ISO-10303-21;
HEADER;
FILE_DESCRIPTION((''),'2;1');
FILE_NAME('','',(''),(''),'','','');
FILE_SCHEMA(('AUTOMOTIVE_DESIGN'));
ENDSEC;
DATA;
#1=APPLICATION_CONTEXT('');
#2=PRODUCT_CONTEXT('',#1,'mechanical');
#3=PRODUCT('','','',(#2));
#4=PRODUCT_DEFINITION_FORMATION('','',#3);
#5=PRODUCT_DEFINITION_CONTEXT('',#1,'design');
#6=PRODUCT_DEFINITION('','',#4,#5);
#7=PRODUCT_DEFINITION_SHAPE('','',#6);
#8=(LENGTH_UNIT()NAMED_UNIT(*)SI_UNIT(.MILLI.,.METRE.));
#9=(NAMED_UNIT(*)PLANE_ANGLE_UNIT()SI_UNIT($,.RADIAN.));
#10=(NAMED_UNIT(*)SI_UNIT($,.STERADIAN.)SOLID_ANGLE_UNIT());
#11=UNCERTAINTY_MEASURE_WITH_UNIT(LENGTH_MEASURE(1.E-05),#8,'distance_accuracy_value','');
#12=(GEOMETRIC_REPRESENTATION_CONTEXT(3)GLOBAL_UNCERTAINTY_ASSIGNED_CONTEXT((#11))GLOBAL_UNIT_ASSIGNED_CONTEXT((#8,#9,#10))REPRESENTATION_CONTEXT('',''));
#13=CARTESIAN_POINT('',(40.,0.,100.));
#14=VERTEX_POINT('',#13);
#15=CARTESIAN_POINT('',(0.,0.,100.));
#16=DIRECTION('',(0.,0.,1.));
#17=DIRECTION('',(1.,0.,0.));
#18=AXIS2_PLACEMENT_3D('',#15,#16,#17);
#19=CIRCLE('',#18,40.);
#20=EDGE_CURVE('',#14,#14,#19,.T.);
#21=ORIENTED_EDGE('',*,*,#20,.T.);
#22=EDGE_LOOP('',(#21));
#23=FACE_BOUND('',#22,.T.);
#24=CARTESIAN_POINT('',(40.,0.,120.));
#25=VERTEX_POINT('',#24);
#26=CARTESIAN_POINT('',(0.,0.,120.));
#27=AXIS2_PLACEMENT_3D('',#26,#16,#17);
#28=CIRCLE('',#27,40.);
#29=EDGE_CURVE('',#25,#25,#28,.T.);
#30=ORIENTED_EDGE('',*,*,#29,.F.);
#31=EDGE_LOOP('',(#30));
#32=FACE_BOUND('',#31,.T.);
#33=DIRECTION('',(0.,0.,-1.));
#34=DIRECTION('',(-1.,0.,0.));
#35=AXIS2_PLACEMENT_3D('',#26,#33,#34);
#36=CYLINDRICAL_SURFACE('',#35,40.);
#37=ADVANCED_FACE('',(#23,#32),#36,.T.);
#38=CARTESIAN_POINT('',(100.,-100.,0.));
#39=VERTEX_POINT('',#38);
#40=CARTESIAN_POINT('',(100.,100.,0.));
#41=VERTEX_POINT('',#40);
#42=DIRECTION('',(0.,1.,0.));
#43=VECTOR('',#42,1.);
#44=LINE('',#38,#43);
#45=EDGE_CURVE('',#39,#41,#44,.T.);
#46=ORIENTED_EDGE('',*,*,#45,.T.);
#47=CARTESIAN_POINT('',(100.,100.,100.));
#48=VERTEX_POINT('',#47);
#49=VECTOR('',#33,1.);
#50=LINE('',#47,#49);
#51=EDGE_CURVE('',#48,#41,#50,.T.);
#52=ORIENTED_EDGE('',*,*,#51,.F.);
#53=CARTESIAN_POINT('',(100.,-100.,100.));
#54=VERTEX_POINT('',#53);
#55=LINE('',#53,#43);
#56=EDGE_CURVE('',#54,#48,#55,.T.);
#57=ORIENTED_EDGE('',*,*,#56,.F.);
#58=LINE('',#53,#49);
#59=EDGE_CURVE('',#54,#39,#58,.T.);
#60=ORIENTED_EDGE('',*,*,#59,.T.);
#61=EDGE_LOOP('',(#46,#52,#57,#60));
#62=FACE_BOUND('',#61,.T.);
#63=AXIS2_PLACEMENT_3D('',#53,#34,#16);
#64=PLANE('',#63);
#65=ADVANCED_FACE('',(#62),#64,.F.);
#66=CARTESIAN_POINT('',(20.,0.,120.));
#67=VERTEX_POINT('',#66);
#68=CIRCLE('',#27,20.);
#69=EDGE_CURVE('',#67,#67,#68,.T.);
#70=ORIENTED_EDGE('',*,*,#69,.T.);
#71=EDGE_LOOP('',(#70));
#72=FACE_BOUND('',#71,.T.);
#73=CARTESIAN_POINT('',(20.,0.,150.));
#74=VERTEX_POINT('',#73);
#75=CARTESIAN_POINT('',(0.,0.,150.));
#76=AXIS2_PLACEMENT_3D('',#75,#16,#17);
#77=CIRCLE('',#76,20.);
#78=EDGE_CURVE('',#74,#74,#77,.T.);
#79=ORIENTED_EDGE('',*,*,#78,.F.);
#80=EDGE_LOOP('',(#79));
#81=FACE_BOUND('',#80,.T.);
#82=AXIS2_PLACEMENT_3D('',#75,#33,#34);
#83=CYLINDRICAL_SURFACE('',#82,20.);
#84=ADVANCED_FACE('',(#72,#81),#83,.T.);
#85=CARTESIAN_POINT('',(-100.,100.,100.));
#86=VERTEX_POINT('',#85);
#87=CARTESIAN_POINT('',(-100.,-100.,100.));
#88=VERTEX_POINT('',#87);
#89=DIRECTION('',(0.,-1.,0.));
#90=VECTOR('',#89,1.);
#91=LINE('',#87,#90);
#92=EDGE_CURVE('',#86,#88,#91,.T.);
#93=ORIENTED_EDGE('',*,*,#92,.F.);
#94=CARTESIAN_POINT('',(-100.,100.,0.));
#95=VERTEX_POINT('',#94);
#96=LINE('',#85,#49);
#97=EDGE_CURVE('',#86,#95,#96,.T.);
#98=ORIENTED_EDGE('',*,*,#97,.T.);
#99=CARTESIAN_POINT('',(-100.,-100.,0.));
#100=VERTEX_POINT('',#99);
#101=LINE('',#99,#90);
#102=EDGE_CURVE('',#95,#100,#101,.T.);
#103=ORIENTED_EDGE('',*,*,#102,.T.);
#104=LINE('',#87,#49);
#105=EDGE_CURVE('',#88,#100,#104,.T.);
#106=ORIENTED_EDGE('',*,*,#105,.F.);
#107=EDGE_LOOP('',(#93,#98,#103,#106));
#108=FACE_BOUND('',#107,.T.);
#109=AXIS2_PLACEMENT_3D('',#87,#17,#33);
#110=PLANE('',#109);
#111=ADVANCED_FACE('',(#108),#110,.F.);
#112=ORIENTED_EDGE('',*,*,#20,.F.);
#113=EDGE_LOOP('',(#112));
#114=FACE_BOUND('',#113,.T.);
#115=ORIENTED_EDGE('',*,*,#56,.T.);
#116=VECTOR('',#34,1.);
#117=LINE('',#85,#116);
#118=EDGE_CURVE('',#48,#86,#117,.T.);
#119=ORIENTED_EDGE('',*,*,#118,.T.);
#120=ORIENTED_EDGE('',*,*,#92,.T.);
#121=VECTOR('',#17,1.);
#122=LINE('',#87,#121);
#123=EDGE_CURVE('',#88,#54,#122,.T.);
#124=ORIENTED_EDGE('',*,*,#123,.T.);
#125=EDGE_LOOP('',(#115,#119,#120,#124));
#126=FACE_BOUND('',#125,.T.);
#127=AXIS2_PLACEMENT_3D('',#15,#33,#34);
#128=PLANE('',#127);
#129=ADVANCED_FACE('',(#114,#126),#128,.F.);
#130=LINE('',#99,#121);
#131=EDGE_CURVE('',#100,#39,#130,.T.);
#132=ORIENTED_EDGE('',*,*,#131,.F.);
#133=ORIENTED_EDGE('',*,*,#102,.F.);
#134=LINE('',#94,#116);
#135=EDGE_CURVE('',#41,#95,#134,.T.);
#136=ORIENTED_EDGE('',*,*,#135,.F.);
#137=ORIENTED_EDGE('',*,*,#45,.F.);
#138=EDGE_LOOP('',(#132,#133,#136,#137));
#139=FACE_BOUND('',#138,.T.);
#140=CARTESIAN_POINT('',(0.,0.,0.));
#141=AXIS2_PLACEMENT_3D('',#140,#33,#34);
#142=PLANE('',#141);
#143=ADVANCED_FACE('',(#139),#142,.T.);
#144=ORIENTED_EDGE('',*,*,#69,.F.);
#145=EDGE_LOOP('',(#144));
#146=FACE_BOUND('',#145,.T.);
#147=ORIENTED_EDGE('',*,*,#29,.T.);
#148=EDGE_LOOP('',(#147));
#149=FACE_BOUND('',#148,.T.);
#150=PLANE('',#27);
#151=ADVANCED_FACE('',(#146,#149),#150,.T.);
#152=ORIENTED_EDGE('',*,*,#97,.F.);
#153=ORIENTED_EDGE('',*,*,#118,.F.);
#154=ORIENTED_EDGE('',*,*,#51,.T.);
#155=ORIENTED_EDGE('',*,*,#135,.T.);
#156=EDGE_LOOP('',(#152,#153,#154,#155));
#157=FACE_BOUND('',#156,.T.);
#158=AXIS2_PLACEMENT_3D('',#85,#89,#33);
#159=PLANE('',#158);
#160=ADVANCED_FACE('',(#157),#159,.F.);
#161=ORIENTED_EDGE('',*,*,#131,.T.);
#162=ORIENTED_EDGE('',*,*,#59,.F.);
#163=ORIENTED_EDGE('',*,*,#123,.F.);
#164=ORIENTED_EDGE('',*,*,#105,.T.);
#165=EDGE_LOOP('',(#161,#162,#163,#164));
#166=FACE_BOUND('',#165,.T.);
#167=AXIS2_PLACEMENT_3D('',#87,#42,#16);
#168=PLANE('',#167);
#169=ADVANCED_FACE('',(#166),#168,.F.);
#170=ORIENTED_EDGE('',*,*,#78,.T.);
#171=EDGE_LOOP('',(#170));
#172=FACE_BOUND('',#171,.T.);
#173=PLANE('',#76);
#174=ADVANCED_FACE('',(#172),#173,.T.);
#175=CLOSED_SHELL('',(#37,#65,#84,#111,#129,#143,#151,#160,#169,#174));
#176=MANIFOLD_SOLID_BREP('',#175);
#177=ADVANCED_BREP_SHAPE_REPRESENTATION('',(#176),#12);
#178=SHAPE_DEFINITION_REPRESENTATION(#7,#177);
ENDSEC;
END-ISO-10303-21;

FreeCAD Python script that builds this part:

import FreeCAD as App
import Part
import Sketcher


def add_polygon(sketch, points):
    """Adds a closed chain of lines whose ends are joined by coincident constraints."""
    first, n = sketch.GeometryCount, len(points)
    for a, b in zip(points, points[1:] + points[:1]):
        sketch.addGeometry(Part.LineSegment(App.Vector(*a, 0), App.Vector(*b, 0)), False)
    for i in range(n):
        sketch.addConstraint(Sketcher.Constraint("Coincident", first + i, 2, first + (i + 1) % n, 1))

doc = App.newDocument("Part")
body = doc.addObject("PartDesign::Body", "Body")

# Sketch on XY plane
sketch1 = body.newObject("Sketcher::SketchObject", "Sketch")
sketch1.AttachmentSupport = (doc.getObject("XY_Plane"), [""])
sketch1.MapMode = "FlatFace"
add_polygon(sketch1, [(-100, 100), (-100, -100), (100, -100), (100, 100)])  # lines 0-3
sketch1.addConstraint([
    Sketcher.Constraint("Vertical", 0),
    Sketcher.Constraint("Horizontal", 1),
    Sketcher.Constraint("Vertical", 2),
    Sketcher.Constraint("Horizontal", 3),
    Sketcher.Constraint("Symmetric", 0, 2, 2, 2, -1, 1),
    Sketcher.Constraint("Equal", 3, 0),
    Sketcher.Constraint("DistanceX", 1, 1, 1, 2, 200.0),
])
pad1 = body.newObject("PartDesign::Pad", "Pad")
pad1.Profile = sketch1
pad1.Length = 100

# Sketch on XY plane
sketch2 = body.newObject("Sketcher::SketchObject", "Sketch001")
sketch2.AttachmentSupport = (doc.getObject("XY_Plane"), [""])
sketch2.MapMode = "FlatFace"
sketch2.AttachmentOffset = App.Placement(App.Vector(0, 0, 100), App.Rotation())
sketch2.addGeometry(Part.Circle(App.Vector(0, 0, 0), App.Vector(0, 0, 1), 40), False)
sketch2.addConstraint([
    Sketcher.Constraint("Coincident", 0, 3, -1, 1),
    Sketcher.Constraint("Diameter", 0, 80.0),
])
pad2 = body.newObject("PartDesign::Pad", "Pad001")
pad2.Profile = sketch2
pad2.Length = 20

# Sketch on XY plane
sketch3 = body.newObject("Sketcher::SketchObject", "Sketch002")
sketch3.AttachmentSupport = (doc.getObject("XY_Plane"), [""])
sketch3.MapMode = "FlatFace"
sketch3.AttachmentOffset = App.Placement(App.Vector(0, 0, 120), App.Rotation())
sketch3.addGeometry(Part.Circle(App.Vector(0, 0, 0), App.Vector(0, 0, 1), 20), False)
sketch3.addConstraint([
    Sketcher.Constraint("Coincident", 0, 3, -1, 1),
    Sketcher.Constraint("Diameter", 0, 40.0),
])
pad3 = body.newObject("PartDesign::Pad", "Pad002")
pad3.Profile = sketch3
pad3.Length = 30

doc.recompute()
